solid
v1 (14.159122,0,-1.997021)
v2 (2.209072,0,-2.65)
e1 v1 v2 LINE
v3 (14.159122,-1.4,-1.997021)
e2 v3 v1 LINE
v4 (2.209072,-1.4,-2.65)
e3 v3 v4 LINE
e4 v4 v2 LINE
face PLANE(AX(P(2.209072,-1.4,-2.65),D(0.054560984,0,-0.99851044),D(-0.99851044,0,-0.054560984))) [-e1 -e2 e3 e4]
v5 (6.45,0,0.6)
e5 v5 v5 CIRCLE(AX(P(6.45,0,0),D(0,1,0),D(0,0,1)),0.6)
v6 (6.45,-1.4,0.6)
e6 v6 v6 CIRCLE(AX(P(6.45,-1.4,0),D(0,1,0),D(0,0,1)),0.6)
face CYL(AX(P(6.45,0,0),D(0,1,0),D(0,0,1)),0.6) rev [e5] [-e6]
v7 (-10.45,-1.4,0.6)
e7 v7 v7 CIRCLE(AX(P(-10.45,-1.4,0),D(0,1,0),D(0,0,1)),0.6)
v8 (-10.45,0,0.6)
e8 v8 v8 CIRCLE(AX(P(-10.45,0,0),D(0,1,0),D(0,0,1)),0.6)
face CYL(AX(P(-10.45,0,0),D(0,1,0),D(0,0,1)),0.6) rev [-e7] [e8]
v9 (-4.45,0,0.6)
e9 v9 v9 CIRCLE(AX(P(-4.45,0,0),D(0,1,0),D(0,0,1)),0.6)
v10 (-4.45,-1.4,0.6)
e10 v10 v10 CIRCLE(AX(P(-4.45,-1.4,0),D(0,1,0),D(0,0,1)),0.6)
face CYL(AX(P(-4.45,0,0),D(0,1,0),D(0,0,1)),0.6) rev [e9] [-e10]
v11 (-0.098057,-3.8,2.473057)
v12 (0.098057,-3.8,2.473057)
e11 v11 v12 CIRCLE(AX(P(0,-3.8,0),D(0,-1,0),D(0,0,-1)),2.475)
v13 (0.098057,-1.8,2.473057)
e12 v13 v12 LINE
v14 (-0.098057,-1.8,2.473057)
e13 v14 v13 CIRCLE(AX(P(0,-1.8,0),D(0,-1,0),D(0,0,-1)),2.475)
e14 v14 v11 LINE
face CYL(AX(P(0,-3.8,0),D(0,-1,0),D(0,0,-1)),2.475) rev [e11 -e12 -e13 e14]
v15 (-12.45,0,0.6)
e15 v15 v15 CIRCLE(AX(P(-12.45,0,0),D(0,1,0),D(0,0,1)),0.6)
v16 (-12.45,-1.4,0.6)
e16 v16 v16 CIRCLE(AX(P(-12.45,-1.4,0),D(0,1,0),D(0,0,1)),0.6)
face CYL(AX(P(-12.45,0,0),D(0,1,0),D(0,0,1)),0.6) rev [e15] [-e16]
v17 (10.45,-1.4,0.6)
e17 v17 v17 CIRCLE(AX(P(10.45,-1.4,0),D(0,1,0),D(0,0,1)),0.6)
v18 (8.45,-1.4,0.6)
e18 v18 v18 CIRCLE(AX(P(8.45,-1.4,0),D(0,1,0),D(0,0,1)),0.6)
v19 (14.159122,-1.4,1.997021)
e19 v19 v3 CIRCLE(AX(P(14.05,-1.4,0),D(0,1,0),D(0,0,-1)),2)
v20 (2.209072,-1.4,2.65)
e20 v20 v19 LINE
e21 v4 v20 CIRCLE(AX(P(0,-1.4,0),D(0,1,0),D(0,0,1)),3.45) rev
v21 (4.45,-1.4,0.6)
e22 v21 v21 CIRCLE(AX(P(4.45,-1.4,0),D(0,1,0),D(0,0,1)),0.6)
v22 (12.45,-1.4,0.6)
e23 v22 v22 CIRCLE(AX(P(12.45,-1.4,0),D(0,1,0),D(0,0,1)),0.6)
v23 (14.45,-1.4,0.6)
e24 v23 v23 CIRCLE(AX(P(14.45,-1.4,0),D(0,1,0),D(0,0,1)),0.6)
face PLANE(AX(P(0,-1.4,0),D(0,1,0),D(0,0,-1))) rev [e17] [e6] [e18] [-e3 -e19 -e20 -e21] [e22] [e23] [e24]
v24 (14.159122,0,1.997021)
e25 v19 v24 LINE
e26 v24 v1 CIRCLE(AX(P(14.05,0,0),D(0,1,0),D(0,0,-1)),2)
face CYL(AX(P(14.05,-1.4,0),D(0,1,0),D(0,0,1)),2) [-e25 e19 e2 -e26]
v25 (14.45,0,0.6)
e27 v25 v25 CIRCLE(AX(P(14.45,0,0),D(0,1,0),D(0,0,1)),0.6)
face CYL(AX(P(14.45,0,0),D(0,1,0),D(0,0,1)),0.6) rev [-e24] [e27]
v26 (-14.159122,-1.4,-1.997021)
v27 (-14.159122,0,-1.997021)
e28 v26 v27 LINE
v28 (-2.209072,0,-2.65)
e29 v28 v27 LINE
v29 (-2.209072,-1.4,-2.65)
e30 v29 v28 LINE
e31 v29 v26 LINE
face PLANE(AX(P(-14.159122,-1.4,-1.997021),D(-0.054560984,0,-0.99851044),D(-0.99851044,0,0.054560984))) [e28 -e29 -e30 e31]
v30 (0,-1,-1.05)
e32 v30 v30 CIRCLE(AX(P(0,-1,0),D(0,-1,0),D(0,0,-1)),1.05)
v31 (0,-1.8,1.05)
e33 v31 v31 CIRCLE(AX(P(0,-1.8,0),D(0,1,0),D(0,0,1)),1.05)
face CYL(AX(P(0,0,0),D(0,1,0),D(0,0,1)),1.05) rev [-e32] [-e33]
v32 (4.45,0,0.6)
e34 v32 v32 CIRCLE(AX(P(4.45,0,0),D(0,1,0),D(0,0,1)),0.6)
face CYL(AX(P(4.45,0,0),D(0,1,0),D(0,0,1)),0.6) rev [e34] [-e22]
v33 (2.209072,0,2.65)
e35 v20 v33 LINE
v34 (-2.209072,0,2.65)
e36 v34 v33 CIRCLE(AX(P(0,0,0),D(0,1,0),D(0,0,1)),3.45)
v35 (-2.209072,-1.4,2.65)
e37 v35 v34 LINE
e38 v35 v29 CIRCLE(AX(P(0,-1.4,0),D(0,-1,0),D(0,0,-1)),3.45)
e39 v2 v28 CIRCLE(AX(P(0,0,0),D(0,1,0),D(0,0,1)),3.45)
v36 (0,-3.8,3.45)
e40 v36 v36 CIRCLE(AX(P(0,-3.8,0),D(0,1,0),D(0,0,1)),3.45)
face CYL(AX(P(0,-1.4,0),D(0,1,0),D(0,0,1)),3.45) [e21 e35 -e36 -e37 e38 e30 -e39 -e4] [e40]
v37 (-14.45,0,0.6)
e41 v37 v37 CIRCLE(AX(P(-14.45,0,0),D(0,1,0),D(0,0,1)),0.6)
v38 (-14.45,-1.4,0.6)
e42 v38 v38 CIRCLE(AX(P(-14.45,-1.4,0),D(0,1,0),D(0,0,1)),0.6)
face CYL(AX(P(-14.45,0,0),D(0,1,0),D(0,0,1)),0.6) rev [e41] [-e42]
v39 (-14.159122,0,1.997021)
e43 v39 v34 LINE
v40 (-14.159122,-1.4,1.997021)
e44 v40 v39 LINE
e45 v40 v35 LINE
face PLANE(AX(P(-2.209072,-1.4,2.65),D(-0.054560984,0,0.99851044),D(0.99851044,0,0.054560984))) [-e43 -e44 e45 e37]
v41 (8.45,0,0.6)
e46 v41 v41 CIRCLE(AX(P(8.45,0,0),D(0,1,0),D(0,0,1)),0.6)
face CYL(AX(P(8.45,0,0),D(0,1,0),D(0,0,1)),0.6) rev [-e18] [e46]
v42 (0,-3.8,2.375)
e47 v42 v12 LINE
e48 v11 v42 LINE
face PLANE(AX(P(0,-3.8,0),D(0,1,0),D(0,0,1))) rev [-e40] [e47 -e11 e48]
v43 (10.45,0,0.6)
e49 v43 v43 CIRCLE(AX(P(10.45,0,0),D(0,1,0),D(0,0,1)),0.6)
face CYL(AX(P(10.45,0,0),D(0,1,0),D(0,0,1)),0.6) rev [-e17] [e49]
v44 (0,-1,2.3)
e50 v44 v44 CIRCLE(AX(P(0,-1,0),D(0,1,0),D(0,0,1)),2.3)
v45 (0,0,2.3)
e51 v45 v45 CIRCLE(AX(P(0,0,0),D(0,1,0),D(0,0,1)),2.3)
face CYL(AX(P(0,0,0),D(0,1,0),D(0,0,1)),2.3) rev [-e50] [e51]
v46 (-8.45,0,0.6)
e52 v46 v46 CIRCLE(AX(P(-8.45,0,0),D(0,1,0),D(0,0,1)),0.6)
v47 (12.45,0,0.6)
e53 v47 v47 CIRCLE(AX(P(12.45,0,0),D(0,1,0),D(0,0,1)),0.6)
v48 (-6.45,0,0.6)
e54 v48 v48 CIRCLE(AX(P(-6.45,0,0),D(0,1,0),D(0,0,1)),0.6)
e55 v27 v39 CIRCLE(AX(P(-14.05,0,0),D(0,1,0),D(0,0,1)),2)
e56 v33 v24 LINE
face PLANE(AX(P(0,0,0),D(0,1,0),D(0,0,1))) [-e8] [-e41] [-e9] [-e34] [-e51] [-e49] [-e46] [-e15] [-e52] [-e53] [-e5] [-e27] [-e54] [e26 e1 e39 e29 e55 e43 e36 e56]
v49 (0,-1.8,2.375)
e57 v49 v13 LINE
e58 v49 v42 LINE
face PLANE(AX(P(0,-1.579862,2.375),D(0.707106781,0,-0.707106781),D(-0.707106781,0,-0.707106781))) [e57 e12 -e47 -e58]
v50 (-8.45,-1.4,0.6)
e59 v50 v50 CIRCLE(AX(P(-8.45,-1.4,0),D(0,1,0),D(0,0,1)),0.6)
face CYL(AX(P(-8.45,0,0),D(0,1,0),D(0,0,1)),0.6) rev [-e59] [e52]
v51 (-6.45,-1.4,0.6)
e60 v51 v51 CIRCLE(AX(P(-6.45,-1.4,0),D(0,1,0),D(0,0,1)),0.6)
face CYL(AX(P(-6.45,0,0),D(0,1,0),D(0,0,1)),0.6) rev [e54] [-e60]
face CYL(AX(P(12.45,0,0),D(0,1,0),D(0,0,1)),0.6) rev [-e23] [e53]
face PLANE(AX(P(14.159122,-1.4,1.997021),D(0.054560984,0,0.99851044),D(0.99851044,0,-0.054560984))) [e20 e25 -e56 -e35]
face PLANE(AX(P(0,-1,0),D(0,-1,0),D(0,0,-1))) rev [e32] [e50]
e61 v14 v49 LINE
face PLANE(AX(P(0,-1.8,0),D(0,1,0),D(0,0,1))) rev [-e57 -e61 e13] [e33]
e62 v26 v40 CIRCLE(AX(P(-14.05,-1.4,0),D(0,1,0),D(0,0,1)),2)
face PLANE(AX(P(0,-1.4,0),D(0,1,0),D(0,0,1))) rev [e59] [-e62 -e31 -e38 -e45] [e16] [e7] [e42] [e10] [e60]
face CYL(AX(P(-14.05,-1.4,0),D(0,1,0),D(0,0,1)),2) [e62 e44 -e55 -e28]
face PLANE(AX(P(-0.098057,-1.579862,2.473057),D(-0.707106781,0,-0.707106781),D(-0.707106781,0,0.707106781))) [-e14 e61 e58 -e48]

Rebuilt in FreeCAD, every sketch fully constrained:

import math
import FreeCAD as App
import Part
import Sketcher

V = App.Vector

doc = App.newDocument("Part")
body = doc.addObject("PartDesign::Body", "Body")

sketch1 = body.newObject("Sketcher::SketchObject", "Sketch")
sketch1.AttachmentSupport = (doc.getObject("XZ_Plane"), [""])
sketch1.MapMode = "FlatFace"
sketch1.addGeometry(Part.LineSegment(V(-2.2, -2.6, 0), V(-14.2, -2, 0)), False)
sketch1.addGeometry(Part.ArcOfCircle(Part.Circle(V(-14.1, 0, 0), V(0, 0, 1), 2), math.radians(93), math.radians(267)), False)
sketch1.addGeometry(Part.LineSegment(V(-14.2, 2, 0), V(-2.2, 2.6, 0)), False)
sketch1.addGeometry(Part.ArcOfCircle(Part.Circle(V(0, 0, 0), V(0, 0, 1), 3.5), math.radians(-130), math.radians(130)), False)
sketch1.addConstraint(Sketcher.Constraint("Tangent", 0, 2, 1, 2))
sketch1.addConstraint(Sketcher.Constraint("Tangent", 1, 1, 2, 1))
sketch1.addConstraint(Sketcher.Constraint("Coincident", 2, 2, 3, 2))
sketch1.addConstraint(Sketcher.Constraint("Coincident", 3, 1, 0, 1))
sketch1.addConstraint(Sketcher.Constraint("Coincident", 3, 3, -1, 1))
sketch1.addConstraint(Sketcher.Constraint("Symmetric", 0, 2, 1, 1, -1))
sketch1.addConstraint(Sketcher.Constraint("Radius", 1, 2.0))
sketch1.addConstraint(Sketcher.Constraint("Radius", 3, 3.45))
sketch1.addConstraint(Sketcher.Constraint("DistanceY", 3, 1, 2, 2, 5.3))
sketch1.addConstraint(Sketcher.Constraint("DistanceX", 1, 3, -1, 1, 14.05))
pad1 = body.newObject("PartDesign::Pad", "Pad")
pad1.Profile = sketch1
pad1.Length = 1.4

sketch2 = body.newObject("Sketcher::SketchObject", "Sketch001")
sketch2.AttachmentSupport = (doc.getObject("XZ_Plane"), [""])
sketch2.MapMode = "FlatFace"
sketch2.AttachmentOffset = App.Placement(V(0, 0, 1.4), App.Rotation())
sketch2.addGeometry(Part.Circle(V(0, 0, 0), V(0, 0, 1), 3.5), False)
sketch2.addConstraint(Sketcher.Constraint("Coincident", 0, 3, -1, 1))
sketch2.addConstraint(Sketcher.Constraint("Diameter", 0, 6.9))
pad2 = body.newObject("PartDesign::Pad", "Pad001")
pad2.Profile = sketch2
pad2.Length = 2.4

sketch3 = body.newObject("Sketcher::SketchObject", "Sketch002")
sketch3.AttachmentSupport = (doc.getObject("XZ_Plane"), [""])
sketch3.MapMode = "FlatFace"
sketch3.addGeometry(Part.Circle(V(-14.4, 0, 0), V(0, 0, 1), 0.6), False)
sketch3.addConstraint(Sketcher.Constraint("PointOnObject", 0, 3, -1))
sketch3.addConstraint(Sketcher.Constraint("Diameter", 0, 1.2))
sketch3.addConstraint(Sketcher.Constraint("DistanceX", 0, 3, -1, 1, 14.45))
doc.recompute()
hole = body.newObject("PartDesign::Hole", "Hole")
hole.Profile = sketch3
hole.ThreadType = "None"
hole.Diameter = 1.2
hole.DepthType = "ThroughAll"
hole.Reversed = True
doc.recompute()

linearpattern = body.newObject("PartDesign::LinearPattern", "LinearPattern")
linearpattern.Originals = [hole]
linearpattern.Direction = (doc.getObject("X_Axis"), [""])
linearpattern.Mode = "offset"
linearpattern.Offset = 2
linearpattern.Occurrences = 6
body.Tip = linearpattern
doc.recompute()

polarpattern = body.newObject("PartDesign::PolarPattern", "PolarPattern")
polarpattern.Originals = [pad1, hole]
polarpattern.Axis = (doc.getObject("Y_Axis"), [""])
polarpattern.Angle = 360
polarpattern.Occurrences = 2
body.Tip = polarpattern

sketch4 = body.newObject("Sketcher::SketchObject", "Sketch003")
sketch4.AttachmentSupport = (doc.getObject("XZ_Plane"), [""])
sketch4.MapMode = "FlatFace"
sketch4.addGeometry(Part.Circle(V(12.4, 0, 0), V(0, 0, 1), 0.6), False)
sketch4.addConstraint(Sketcher.Constraint("PointOnObject", 0, 3, -1))
sketch4.addConstraint(Sketcher.Constraint("Diameter", 0, 1.2))
sketch4.addConstraint(Sketcher.Constraint("DistanceX", -1, 1, 0, 3, 12.45))
doc.recompute()
hole2 = body.newObject("PartDesign::Hole", "Hole001")
hole2.Profile = sketch4
hole2.ThreadType = "None"
hole2.Diameter = 1.2
hole2.DepthType = "ThroughAll"
hole2.Reversed = True

sketch5 = body.newObject("Sketcher::SketchObject", "Sketch004")
sketch5.AttachmentSupport = (doc.getObject("XZ_Plane"), [""])
sketch5.MapMode = "FlatFace"
sketch5.addGeometry(Part.Circle(V(10.4, 0, 0), V(0, 0, 1), 0.6), False)
sketch5.addConstraint(Sketcher.Constraint("PointOnObject", 0, 3, -1))
sketch5.addConstraint(Sketcher.Constraint("Diameter", 0, 1.2))
sketch5.addConstraint(Sketcher.Constraint("DistanceX", -1, 1, 0, 3, 10.45))
doc.recompute()
hole3 = body.newObject("PartDesign::Hole", "Hole002")
hole3.Profile = sketch5
hole3.ThreadType = "None"
hole3.Diameter = 1.2
hole3.DepthType = "ThroughAll"
hole3.Reversed = True

sketch6 = body.newObject("Sketcher::SketchObject", "Sketch005")
sketch6.AttachmentSupport = (doc.getObject("XZ_Plane"), [""])
sketch6.MapMode = "FlatFace"
sketch6.addGeometry(Part.Circle(V(8.4, 0, 0), V(0, 0, 1), 0.6), False)
sketch6.addConstraint(Sketcher.Constraint("PointOnObject", 0, 3, -1))
sketch6.addConstraint(Sketcher.Constraint("Diameter", 0, 1.2))
sketch6.addConstraint(Sketcher.Constraint("DistanceX", -1, 1, 0, 3, 8.45))
doc.recompute()
hole4 = body.newObject("PartDesign::Hole", "Hole003")
hole4.Profile = sketch6
hole4.ThreadType = "None"
hole4.Diameter = 1.2
hole4.DepthType = "ThroughAll"
hole4.Reversed = True

sketch7 = body.newObject("Sketcher::SketchObject", "Sketch006")
sketch7.AttachmentSupport = (doc.getObject("XZ_Plane"), [""])
sketch7.MapMode = "FlatFace"
sketch7.addGeometry(Part.Circle(V(6.5, 0, 0), V(0, 0, 1), 0.6), False)
sketch7.addConstraint(Sketcher.Constraint("PointOnObject", 0, 3, -1))
sketch7.addConstraint(Sketcher.Constraint("Diameter", 0, 1.2))
sketch7.addConstraint(Sketcher.Constraint("DistanceX", -1, 1, 0, 3, 6.45))
doc.recompute()
hole5 = body.newObject("PartDesign::Hole", "Hole004")
hole5.Profile = sketch7
hole5.ThreadType = "None"
hole5.Diameter = 1.2
hole5.DepthType = "ThroughAll"
hole5.Reversed = True

sketch8 = body.newObject("Sketcher::SketchObject", "Sketch007")
sketch8.AttachmentSupport = (doc.getObject("XZ_Plane"), [""])
sketch8.MapMode = "FlatFace"
sketch8.addGeometry(Part.Circle(V(4.5, 0, 0), V(0, 0, 1), 0.6), False)
sketch8.addConstraint(Sketcher.Constraint("PointOnObject", 0, 3, -1))
sketch8.addConstraint(Sketcher.Constraint("Diameter", 0, 1.2))
sketch8.addConstraint(Sketcher.Constraint("DistanceX", -1, 1, 0, 3, 4.45))
doc.recompute()
hole6 = body.newObject("PartDesign::Hole", "Hole005")
hole6.Profile = sketch8
hole6.ThreadType = "None"
hole6.Diameter = 1.2
hole6.DepthType = "ThroughAll"
hole6.Reversed = True

sketch9 = body.newObject("Sketcher::SketchObject", "Sketch008")
sketch9.AttachmentSupport = (doc.getObject("XZ_Plane"), [""])
sketch9.MapMode = "FlatFace"
sketch9.AttachmentOffset = App.Placement(V(0, 0, 3.8), App.Rotation())
sketch9.addGeometry(Part.Circle(V(0, 0, 0), V(0, 0, 1), 2.5), False)
sketch9.addConstraint(Sketcher.Constraint("Coincident", 0, 3, -1, 1))
sketch9.addConstraint(Sketcher.Constraint("Diameter", 0, 4.95))
doc.recompute()
hole7 = body.newObject("PartDesign::Hole", "Hole006")
hole7.Profile = sketch9
hole7.ThreadType = "None"
hole7.Diameter = 4.95
hole7.DepthType = "Dimension"
hole7.Depth = 2
hole7.DrillPoint = "Flat"

sketch10 = body.newObject("Sketcher::SketchObject", "Sketch009")
sketch10.AttachmentSupport = (doc.getObject("XZ_Plane"), [""])
sketch10.MapMode = "FlatFace"
sketch10.addGeometry(Part.Circle(V(0, 0, 0), V(0, 0, 1), 2.3), False)
sketch10.addConstraint(Sketcher.Constraint("Coincident", 0, 3, -1, 1))
sketch10.addConstraint(Sketcher.Constraint("Diameter", 0, 4.6))
doc.recompute()
hole8 = body.newObject("PartDesign::Hole", "Hole007")
hole8.Profile = sketch10
hole8.ThreadType = "None"
hole8.Diameter = 4.6
hole8.DepthType = "Dimension"
hole8.Depth = 1
hole8.DrillPoint = "Flat"
hole8.Reversed = True

sketch11 = body.newObject("Sketcher::SketchObject", "Sketch010")
sketch11.AttachmentSupport = (doc.getObject("XZ_Plane"), [""])
sketch11.MapMode = "FlatFace"
sketch11.addGeometry(Part.Circle(V(0, 0, 0), V(0, 0, 1), 1.1), False)
sketch11.addConstraint(Sketcher.Constraint("Coincident", 0, 3, -1, 1))
sketch11.addConstraint(Sketcher.Constraint("Diameter", 0, 2.1))
doc.recompute()
hole9 = body.newObject("PartDesign::Hole", "Hole008")
hole9.Profile = sketch11
hole9.ThreadType = "None"
hole9.Diameter = 2.1
hole9.DepthType = "ThroughAll"
hole9.Reversed = True

sketch12 = body.newObject("Sketcher::SketchObject", "Sketch011")
sketch12.AttachmentSupport = (doc.getObject("XZ_Plane"), [""])
sketch12.MapMode = "FlatFace"
sketch12.AttachmentOffset = App.Placement(V(0, 0, 3.8), App.Rotation())
sketch12.addGeometry(Part.LineSegment(V(-0.1, 2.47, 0), V(0, 2.38, 0)), False)
sketch12.addGeometry(Part.LineSegment(V(0, 2.38, 0), V(0.1, 2.47, 0)), False)
sketch12.addGeometry(Part.ArcOfCircle(Part.Circle(V(0, 0, 0), V(0, 0, 1), 2.48), math.radians(87.73), math.radians(92.27)), False)
sketch12.addConstraint(Sketcher.Constraint("Coincident", 0, 2, 1, 1))
sketch12.addConstraint(Sketcher.Constraint("Coincident", 1, 2, 2, 1))
sketch12.addConstraint(Sketcher.Constraint("Coincident", 2, 2, 0, 1))
sketch12.addConstraint(Sketcher.Constraint("Coincident", 2, 3, -1, 1))
sketch12.addConstraint(Sketcher.Constraint("PointOnObject", 0, 2, -2))
sketch12.addConstraint(Sketcher.Constraint("Perpendicular", 0, 1))
sketch12.addConstraint(Sketcher.Constraint("Horizontal", 1, 2, 2, 2))
sketch12.addConstraint(Sketcher.Constraint("Radius", 2, 2.475))
sketch12.addConstraint(Sketcher.Constraint("DistanceY", -1, 1, 0, 2, 2.375))
pad3 = body.newObject("PartDesign::Pad", "Pad002")
pad3.Profile = sketch12
pad3.Length = 2
pad3.Reversed = True

doc.recompute()
